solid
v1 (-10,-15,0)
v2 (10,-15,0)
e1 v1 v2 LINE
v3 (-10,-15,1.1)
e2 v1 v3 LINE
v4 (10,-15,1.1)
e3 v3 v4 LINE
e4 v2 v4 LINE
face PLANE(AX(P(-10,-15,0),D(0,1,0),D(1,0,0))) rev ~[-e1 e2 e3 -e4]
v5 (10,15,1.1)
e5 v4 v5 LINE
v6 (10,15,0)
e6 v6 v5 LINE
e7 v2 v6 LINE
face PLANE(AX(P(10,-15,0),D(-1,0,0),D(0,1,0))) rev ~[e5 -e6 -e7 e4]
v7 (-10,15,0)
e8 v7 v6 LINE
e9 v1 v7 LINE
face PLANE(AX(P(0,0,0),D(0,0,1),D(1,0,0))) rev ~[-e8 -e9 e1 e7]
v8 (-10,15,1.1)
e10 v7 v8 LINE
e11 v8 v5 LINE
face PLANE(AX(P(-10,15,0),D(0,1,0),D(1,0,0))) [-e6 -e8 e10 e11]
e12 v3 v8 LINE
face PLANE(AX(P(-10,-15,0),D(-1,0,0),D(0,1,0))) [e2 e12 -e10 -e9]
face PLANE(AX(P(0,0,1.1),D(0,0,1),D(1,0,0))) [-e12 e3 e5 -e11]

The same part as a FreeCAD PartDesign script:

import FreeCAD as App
import Part
import Sketcher

V = App.Vector
Q = App.Units.Quantity

doc = App.newDocument("Part")
body = doc.addObject("PartDesign::Body", "Body")

# Sketch on XY plane
sketch1 = body.newObject("Sketcher::SketchObject", "Sketch")
sketch1.AttachmentSupport = (doc.getObject("XY_Plane"), [""])
sketch1.MapMode = "FlatFace"
sketch1.addGeometry(Part.LineSegment(V(-10, 15, 0), V(-10, -15, 0)), False)
sketch1.addGeometry(Part.LineSegment(V(-10, -15, 0), V(10, -15, 0)), False)
sketch1.addGeometry(Part.LineSegment(V(10, -15, 0), V(10, 15, 0)), False)
sketch1.addGeometry(Part.LineSegment(V(10, 15, 0), V(-10, 15, 0)), False)
sketch1.addConstraint(Sketcher.Constraint("Coincident", 0, 2, 1, 1))
sketch1.addConstraint(Sketcher.Constraint("Coincident", 1, 2, 2, 1))
sketch1.addConstraint(Sketcher.Constraint("Coincident", 2, 2, 3, 1))
sketch1.addConstraint(Sketcher.Constraint("Coincident", 3, 2, 0, 1))
sketch1.addConstraint(Sketcher.Constraint("Vertical", 0))
sketch1.addConstraint(Sketcher.Constraint("Horizontal", 1))
sketch1.addConstraint(Sketcher.Constraint("Vertical", 2))
sketch1.addConstraint(Sketcher.Constraint("Horizontal", 3))
sketch1.addConstraint(Sketcher.Constraint("Symmetric", 0, 2, 2, 2, -1, 1))
sketch1.addConstraint(Sketcher.Constraint("DistanceX", 1, 1, 1, 2, Q("20 mm")))
sketch1.addConstraint(Sketcher.Constraint("DistanceY", 0, 2, 0, 1, Q("30 mm")))
pad1 = body.newObject("PartDesign::Pad", "Pad")
pad1.Profile = sketch1
pad1.Length = 1.1

doc.recompute()
